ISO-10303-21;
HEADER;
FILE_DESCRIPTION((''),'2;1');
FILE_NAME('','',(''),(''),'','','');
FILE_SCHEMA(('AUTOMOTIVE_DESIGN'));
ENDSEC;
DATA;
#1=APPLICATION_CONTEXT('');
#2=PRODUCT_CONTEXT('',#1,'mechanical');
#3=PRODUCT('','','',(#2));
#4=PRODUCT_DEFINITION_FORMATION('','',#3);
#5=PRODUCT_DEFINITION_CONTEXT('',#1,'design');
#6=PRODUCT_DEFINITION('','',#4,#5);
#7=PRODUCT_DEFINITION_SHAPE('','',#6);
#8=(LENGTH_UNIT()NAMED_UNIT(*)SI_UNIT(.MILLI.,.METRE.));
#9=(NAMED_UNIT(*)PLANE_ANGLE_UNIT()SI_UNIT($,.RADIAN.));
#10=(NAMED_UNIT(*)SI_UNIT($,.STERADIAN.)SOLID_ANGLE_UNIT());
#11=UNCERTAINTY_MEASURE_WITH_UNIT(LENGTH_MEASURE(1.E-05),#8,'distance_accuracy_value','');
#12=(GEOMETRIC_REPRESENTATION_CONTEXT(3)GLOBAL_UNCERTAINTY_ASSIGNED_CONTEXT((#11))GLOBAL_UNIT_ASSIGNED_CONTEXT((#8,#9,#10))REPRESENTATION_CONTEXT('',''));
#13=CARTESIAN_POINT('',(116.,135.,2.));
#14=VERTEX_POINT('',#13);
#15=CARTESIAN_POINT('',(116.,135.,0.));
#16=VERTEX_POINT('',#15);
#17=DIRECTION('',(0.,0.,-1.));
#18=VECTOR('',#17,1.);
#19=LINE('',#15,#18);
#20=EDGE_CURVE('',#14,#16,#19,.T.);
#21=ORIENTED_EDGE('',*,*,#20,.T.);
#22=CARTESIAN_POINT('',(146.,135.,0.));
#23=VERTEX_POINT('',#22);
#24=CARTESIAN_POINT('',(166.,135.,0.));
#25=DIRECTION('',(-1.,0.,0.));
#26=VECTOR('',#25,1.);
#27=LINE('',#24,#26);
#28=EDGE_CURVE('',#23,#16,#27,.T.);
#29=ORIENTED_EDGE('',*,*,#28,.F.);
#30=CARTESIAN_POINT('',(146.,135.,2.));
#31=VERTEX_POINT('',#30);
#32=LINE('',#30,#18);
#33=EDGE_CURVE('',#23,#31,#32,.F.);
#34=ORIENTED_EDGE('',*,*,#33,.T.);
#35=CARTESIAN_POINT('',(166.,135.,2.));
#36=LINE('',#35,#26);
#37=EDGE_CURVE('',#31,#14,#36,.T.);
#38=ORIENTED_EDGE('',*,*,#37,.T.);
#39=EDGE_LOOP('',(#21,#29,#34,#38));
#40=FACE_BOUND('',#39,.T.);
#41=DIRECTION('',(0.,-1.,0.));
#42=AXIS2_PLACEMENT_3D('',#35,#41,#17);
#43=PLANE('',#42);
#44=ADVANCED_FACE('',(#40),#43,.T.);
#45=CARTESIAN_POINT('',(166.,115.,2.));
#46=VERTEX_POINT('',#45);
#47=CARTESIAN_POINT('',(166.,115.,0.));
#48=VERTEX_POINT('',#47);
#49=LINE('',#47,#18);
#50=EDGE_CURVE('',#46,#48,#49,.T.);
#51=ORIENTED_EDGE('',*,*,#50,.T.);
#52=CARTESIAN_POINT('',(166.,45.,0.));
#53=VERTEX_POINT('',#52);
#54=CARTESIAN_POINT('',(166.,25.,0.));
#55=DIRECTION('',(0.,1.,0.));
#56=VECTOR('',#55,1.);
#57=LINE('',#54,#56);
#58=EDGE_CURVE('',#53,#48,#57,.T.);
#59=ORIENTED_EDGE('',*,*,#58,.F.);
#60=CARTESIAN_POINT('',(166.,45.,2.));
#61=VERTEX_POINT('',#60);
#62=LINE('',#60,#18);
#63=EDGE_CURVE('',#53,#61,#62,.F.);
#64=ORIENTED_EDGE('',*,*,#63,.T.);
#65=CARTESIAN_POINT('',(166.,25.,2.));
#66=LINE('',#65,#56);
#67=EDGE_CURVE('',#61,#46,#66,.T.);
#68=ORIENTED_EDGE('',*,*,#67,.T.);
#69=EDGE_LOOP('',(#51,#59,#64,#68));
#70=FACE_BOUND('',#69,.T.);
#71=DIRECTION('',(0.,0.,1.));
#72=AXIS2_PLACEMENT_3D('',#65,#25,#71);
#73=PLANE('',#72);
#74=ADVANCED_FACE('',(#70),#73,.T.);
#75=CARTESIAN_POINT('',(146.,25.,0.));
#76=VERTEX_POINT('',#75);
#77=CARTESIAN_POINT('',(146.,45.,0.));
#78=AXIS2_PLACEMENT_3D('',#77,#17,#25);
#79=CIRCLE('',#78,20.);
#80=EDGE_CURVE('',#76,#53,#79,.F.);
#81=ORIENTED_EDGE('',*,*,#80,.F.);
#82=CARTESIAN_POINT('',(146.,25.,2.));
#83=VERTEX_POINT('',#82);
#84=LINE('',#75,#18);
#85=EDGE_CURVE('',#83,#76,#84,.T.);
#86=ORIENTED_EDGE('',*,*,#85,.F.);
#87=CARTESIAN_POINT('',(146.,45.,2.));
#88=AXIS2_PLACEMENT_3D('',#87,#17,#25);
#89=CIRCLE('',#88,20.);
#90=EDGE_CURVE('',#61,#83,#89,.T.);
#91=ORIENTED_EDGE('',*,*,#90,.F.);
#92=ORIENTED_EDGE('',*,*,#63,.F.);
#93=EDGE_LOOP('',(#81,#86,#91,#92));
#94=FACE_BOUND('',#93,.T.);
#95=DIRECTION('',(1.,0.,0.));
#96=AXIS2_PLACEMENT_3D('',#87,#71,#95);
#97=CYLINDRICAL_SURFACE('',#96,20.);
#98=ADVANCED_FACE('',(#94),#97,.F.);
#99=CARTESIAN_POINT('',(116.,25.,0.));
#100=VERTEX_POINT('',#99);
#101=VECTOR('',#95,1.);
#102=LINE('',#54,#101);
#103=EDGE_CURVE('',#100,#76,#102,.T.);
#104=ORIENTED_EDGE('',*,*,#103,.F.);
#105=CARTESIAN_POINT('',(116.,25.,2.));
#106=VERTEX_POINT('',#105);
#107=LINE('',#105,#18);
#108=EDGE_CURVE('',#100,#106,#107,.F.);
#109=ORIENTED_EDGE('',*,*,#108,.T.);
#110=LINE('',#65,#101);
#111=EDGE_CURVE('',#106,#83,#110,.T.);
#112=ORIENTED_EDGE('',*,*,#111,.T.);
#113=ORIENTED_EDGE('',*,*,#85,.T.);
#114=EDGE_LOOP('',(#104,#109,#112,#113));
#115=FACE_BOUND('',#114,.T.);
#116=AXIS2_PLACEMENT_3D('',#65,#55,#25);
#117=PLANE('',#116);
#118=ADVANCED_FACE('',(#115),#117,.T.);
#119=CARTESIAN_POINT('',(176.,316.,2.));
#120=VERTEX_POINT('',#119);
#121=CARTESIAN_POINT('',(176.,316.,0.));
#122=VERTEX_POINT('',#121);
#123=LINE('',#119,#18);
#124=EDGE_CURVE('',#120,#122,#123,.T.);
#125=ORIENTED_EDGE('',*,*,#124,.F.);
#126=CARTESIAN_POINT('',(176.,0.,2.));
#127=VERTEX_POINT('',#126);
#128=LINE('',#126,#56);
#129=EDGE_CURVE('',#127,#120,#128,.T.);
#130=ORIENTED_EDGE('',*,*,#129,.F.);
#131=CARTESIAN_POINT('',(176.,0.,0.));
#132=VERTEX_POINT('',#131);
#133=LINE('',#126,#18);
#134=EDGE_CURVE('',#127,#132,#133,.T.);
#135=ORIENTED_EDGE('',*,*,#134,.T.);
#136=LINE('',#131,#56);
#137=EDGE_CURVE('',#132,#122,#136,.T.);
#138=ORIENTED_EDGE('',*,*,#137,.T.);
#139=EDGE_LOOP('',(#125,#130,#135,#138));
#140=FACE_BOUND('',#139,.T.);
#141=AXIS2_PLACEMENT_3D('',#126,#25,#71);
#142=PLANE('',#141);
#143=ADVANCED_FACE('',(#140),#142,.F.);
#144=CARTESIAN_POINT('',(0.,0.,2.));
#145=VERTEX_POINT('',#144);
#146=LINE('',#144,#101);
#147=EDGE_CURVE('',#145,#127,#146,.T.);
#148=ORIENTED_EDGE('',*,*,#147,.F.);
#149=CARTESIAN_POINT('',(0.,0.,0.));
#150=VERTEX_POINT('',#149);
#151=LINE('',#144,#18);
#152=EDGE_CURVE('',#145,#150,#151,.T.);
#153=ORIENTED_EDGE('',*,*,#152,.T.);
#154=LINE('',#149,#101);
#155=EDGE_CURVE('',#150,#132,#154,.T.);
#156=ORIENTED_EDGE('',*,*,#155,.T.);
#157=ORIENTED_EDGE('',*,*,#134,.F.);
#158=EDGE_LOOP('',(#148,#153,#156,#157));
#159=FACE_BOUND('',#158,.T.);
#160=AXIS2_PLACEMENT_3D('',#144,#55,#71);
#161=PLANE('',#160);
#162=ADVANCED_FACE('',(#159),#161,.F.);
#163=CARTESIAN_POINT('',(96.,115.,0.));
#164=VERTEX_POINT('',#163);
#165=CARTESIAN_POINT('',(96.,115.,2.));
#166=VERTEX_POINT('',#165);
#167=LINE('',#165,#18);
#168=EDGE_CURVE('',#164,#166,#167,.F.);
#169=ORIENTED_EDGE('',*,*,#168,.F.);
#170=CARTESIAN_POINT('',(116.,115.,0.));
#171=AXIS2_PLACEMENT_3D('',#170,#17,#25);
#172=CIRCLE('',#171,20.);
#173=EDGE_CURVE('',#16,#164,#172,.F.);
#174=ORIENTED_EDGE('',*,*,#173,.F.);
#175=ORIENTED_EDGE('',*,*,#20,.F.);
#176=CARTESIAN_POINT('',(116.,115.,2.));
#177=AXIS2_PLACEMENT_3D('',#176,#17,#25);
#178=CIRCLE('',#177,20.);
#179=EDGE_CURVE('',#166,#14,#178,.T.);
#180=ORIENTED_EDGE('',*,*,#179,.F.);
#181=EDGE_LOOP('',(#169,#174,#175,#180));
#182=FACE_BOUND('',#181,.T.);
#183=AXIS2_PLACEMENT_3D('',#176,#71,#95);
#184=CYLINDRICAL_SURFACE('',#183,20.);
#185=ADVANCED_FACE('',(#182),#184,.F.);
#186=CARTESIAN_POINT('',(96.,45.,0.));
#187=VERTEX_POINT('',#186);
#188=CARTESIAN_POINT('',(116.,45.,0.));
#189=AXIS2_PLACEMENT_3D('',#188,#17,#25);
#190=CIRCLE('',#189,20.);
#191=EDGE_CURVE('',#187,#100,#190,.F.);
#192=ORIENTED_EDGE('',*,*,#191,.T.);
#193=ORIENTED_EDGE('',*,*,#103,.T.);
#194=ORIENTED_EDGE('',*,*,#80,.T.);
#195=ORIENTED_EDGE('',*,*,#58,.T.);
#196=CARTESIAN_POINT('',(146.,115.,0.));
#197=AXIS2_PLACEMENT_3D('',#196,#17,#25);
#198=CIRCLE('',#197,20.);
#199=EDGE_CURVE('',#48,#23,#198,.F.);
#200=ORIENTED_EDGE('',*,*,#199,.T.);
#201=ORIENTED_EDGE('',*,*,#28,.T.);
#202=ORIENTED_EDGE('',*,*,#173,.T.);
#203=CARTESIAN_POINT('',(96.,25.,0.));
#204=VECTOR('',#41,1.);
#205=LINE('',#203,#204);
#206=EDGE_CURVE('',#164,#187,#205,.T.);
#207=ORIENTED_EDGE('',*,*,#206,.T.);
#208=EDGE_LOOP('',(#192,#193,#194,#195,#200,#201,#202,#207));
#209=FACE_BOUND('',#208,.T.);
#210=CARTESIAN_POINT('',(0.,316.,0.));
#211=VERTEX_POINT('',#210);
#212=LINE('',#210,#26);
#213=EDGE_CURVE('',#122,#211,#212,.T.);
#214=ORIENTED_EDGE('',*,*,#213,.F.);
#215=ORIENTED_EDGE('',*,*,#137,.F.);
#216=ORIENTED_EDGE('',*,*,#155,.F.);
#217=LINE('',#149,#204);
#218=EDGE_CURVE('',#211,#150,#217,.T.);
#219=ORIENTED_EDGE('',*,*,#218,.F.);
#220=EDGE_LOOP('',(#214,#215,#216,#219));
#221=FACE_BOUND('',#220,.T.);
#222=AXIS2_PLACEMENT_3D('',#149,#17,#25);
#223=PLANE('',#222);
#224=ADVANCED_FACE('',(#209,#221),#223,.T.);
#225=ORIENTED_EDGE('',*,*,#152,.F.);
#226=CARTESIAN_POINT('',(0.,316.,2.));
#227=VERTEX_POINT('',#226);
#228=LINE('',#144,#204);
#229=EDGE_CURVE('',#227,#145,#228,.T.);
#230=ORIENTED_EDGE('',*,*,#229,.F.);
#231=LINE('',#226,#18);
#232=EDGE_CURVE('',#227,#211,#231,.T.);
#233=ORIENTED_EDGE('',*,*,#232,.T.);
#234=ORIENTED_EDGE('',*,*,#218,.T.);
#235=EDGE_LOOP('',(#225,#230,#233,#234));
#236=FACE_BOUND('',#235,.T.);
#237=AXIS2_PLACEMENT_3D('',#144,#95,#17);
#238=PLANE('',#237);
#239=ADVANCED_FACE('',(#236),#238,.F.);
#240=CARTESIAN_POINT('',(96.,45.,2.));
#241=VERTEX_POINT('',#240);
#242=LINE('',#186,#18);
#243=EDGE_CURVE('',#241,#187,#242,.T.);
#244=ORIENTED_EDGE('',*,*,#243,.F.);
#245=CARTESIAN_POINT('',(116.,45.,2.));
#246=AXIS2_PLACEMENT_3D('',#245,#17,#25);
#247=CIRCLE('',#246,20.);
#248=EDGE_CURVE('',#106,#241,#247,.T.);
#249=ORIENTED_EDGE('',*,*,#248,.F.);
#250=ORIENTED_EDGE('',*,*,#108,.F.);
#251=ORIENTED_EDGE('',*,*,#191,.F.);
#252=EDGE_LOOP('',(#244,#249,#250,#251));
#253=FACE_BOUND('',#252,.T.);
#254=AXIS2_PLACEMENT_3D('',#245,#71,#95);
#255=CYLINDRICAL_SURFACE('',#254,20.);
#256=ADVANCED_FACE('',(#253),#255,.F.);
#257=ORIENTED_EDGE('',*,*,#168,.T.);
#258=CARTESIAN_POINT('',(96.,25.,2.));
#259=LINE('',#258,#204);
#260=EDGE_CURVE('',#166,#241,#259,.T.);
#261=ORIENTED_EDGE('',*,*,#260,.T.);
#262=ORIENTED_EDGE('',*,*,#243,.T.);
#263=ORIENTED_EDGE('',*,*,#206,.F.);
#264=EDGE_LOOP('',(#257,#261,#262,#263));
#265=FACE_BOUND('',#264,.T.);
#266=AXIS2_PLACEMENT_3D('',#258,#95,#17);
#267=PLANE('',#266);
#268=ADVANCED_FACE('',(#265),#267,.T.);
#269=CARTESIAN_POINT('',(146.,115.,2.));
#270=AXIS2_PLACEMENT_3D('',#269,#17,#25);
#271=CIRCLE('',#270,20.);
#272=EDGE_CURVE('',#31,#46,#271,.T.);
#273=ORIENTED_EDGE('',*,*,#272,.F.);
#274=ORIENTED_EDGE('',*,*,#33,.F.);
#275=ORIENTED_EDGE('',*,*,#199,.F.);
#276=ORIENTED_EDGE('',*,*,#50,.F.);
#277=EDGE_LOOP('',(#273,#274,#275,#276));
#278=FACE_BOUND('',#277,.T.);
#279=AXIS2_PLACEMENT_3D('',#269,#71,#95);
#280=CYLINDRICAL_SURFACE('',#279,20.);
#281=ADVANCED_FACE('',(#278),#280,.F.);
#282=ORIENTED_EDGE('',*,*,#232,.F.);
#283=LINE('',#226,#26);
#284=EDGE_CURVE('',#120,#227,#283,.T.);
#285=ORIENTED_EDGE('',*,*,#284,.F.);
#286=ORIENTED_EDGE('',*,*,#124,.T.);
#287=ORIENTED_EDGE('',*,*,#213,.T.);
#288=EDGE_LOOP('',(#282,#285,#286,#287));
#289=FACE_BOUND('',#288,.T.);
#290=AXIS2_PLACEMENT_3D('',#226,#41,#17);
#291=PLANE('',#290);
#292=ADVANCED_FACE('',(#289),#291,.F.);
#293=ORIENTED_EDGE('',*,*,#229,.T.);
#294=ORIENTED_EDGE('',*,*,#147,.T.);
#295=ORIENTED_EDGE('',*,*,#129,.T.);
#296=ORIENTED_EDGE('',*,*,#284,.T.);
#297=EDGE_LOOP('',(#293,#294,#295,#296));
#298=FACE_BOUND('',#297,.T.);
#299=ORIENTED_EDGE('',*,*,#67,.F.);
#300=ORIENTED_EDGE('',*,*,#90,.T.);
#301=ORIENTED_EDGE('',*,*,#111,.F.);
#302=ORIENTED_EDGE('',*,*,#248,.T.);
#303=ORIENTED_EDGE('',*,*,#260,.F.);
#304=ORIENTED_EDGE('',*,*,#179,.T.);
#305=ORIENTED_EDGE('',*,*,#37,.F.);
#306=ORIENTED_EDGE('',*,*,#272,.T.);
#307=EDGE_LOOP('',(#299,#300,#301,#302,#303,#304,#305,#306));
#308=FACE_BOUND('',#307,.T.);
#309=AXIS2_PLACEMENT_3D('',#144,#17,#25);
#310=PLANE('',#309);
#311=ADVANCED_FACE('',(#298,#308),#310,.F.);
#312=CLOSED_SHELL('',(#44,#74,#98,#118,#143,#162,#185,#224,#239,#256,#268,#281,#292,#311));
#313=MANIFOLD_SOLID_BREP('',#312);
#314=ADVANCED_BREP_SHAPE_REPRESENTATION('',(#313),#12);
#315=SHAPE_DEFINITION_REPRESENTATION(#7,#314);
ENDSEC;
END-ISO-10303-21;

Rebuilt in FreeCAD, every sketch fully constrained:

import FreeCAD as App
import Part
import Sketcher


def edges_at(feature, points):
    """Names of the edges that pass closest to the given points."""
    edges = feature.Shape.Edges
    near = lambda p: min(range(len(edges)), key=lambda i: edges[i].distToShape(Part.Vertex(*p))[0])
    return sorted({f"Edge{near(p) + 1}" for p in points})


def add_polygon(sketch, points):
    """Adds a closed chain of lines whose ends are joined by coincident constraints."""
    first, n = sketch.GeometryCount, len(points)
    for a, b in zip(points, points[1:] + points[:1]):
        sketch.addGeometry(Part.LineSegment(App.Vector(*a, 0), App.Vector(*b, 0)), False)
    for i in range(n):
        sketch.addConstraint(Sketcher.Constraint("Coincident", first + i, 2, first + (i + 1) % n, 1))

doc = App.newDocument("Part")
body = doc.addObject("PartDesign::Body", "Body")

sketch1 = body.newObject("Sketcher::SketchObject", "Sketch")
sketch1.AttachmentSupport = (doc.getObject("XY_Plane"), [""])
sketch1.MapMode = "FlatFace"
add_polygon(sketch1, [(0, 316), (0, 0), (176, 0), (176, 316)])
add_polygon(sketch1, [(166, 25), (96, 25), (96, 135), (166, 135)])
sketch1.addConstraint([
    Sketcher.Constraint("Vertical", 0),
    Sketcher.Constraint("Horizontal", 1),
    Sketcher.Constraint("Vertical", 2),
    Sketcher.Constraint("Horizontal", 3),
    Sketcher.Constraint("Horizontal", 4),
    Sketcher.Constraint("Vertical", 5),
    Sketcher.Constraint("Horizontal", 6),
    Sketcher.Constraint("Vertical", 7),
    Sketcher.Constraint("Coincident", 0, 2, -1, 1),
    Sketcher.Constraint("DistanceX", 1, 1, 1, 2, 176.0),
    Sketcher.Constraint("DistanceX", 4, 2, 4, 1, 70.0),
    Sketcher.Constraint("DistanceY", 0, 2, 0, 1, 316.0),
    Sketcher.Constraint("DistanceY", 5, 1, 5, 2, 110.0),
    Sketcher.Constraint("DistanceX", -1, 1, 4, 2, 96.0),
    Sketcher.Constraint("DistanceY", -1, 1, 4, 2, 25.0),
])
pad1 = body.newObject("PartDesign::Pad", "Pad")
pad1.Profile = sketch1
pad1.Length = 2
doc.recompute()

fillet = body.newObject("PartDesign::Fillet", "Fillet")
fillet.Base = (pad1, edges_at(pad1, [
    (166, 25, 1),
    (166, 135, 1),
    (96, 135, 1),
    (96, 25, 1),
]))
fillet.Radius = 20

doc.recompute()
